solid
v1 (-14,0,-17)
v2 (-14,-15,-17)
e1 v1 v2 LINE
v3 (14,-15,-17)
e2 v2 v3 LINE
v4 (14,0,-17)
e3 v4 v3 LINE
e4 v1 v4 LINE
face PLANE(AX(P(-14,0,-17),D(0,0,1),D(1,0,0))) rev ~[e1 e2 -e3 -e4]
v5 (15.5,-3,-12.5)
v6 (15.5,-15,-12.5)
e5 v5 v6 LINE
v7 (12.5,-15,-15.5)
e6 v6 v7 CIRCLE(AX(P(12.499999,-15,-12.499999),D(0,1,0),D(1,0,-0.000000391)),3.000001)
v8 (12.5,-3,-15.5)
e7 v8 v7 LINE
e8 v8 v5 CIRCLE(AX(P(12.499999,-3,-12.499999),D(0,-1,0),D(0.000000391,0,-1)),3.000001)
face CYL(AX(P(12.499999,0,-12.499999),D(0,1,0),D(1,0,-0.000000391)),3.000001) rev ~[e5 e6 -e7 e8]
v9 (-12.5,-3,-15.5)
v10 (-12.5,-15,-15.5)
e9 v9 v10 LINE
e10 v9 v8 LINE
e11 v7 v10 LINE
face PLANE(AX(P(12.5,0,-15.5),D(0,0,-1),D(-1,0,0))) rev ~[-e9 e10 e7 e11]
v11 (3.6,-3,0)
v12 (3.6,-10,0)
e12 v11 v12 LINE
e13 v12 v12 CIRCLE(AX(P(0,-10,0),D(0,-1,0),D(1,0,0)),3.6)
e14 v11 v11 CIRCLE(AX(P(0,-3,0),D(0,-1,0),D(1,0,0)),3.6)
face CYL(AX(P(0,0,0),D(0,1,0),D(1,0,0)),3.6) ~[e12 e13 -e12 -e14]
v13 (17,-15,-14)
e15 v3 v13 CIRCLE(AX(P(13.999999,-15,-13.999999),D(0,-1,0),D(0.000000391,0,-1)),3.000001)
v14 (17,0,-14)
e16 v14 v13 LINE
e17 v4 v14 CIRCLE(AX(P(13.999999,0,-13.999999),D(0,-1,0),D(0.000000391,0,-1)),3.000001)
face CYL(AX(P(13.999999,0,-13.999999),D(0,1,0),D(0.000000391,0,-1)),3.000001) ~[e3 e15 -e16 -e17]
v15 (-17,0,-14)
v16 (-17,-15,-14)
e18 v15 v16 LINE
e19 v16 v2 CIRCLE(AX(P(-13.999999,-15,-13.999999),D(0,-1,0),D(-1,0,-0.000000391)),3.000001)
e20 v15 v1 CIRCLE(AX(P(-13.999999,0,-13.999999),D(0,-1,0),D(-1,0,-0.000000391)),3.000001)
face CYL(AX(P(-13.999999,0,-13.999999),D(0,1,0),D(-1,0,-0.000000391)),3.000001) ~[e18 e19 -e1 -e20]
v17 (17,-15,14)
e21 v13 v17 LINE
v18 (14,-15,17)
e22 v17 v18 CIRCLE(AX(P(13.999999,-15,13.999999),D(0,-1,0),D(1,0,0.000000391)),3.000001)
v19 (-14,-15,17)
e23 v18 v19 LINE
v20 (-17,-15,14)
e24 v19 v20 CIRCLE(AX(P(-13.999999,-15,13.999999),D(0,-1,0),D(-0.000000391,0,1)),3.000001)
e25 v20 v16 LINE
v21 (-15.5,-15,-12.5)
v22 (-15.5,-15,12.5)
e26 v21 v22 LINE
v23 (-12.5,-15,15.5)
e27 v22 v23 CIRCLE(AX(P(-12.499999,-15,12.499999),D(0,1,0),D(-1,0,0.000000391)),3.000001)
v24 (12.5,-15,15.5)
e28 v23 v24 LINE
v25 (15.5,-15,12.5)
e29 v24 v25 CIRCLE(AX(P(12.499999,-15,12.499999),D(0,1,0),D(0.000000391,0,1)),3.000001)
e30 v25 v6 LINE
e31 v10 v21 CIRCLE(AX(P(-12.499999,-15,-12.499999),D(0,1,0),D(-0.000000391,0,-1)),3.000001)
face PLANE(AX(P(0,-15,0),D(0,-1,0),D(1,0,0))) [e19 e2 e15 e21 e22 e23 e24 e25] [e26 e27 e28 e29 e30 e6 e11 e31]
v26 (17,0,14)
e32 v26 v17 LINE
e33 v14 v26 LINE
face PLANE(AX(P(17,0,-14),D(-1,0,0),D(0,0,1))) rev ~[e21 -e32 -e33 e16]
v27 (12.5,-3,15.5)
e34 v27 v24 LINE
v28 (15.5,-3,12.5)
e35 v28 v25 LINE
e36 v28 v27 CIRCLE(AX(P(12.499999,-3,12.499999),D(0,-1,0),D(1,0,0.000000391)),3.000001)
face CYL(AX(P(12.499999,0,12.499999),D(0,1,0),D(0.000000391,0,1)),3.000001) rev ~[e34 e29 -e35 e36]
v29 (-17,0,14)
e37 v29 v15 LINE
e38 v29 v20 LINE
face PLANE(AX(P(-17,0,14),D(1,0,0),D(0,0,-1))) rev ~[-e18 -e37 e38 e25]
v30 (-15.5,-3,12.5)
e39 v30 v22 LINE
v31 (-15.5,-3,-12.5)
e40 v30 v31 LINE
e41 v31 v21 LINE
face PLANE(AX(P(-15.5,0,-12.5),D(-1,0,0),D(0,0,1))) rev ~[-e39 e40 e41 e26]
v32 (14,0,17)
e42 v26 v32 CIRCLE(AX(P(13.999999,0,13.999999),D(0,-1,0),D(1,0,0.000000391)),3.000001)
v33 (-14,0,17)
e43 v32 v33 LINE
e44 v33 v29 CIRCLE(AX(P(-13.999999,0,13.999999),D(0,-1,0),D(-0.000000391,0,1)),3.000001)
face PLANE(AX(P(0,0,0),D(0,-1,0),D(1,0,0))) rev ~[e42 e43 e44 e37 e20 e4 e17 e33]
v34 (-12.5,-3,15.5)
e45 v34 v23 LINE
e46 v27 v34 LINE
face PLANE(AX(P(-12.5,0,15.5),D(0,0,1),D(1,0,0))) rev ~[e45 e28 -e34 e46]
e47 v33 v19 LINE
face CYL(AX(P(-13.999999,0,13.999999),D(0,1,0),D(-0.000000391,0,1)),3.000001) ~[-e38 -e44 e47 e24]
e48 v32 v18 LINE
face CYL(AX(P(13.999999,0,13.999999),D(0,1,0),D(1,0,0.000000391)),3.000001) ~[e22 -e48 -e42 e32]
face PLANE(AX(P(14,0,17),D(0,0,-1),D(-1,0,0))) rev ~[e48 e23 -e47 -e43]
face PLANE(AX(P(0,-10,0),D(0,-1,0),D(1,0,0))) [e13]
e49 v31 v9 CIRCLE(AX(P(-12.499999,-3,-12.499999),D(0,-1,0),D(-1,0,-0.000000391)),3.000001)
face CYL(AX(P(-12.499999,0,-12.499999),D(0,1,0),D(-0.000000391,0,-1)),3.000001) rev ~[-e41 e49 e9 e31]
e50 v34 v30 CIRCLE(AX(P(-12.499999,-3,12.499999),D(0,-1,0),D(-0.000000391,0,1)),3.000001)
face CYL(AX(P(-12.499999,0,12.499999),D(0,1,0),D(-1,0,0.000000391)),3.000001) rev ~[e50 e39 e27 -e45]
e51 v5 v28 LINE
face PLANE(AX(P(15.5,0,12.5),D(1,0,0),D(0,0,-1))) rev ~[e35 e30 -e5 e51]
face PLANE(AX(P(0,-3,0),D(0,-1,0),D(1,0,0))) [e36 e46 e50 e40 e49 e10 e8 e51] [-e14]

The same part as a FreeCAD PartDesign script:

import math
import FreeCAD as App
import Part
import Sketcher
Q = App.Units.Quantity

doc = App.newDocument("Part")
params = doc.addObject("Spreadsheet::Sheet", "Params")
for row, (alias, value) in enumerate([
    ("sketch1_radius", "3.000001 mm"),
    ("sketch1_diameter", "7.2 mm"),
    ("sketch1_width", "25 mm"),
    ("pad1_length", "3 mm"),
    ("sketch2_diameter", "7.2 mm"),
    ("pad2_length", "10 mm"),
    ("sketch3_radius", "3.000001 mm"),
    ("sketch3_width", "28 mm"),
    ("sketch3_width2", "25 mm"),
    ("pad3_length", "15 mm"),
], start=1):
    params.set(f"A{row}", alias)
    params.set(f"B{row}", "=" + value)
    params.setAlias(f"B{row}", alias)

body = doc.addObject("PartDesign::Body", "Body")

# Sketch on XZ plane
sketch1 = body.newObject("Sketcher::SketchObject", "Sketch")
sketch1.AttachmentSupport = (doc.getObject("XZ_Plane"), [""])
sketch1.MapMode = "FlatFace"
sketch1.addGeometry(Part.ArcOfCircle(Part.Circle(App.Vector(12.5, 12.5, 0), App.Vector(0, 0, 1), 3), math.radians(0), math.radians(90)), False)
sketch1.addGeometry(Part.LineSegment(App.Vector(12.5, 15.5, 0), App.Vector(-12.5, 15.5, 0)), False)
sketch1.addGeometry(Part.ArcOfCircle(Part.Circle(App.Vector(-12.5, 12.5, 0), App.Vector(0, 0, 1), 3), math.radians(90), math.radians(180)), False)
sketch1.addGeometry(Part.LineSegment(App.Vector(-15.5, 12.5, 0), App.Vector(-15.5, -12.5, 0)), False)
sketch1.addGeometry(Part.ArcOfCircle(Part.Circle(App.Vector(-12.5, -12.5, 0), App.Vector(0, 0, 1), 3), math.radians(-180), math.radians(-90)), False)
sketch1.addGeometry(Part.LineSegment(App.Vector(-12.5, -15.5, 0), App.Vector(12.5, -15.5, 0)), False)
sketch1.addGeometry(Part.ArcOfCircle(Part.Circle(App.Vector(12.5, -12.5, 0), App.Vector(0, 0, 1), 3), math.radians(-90), math.radians(0)), False)
sketch1.addGeometry(Part.LineSegment(App.Vector(15.5, -12.5, 0), App.Vector(15.5, 12.5, 0)), False)
sketch1.addGeometry(Part.Circle(App.Vector(0, 0, 0), App.Vector(0, 0, 1), 3.6), False)
sketch1.addConstraint(Sketcher.Constraint("Tangent", 0, 2, 1, 1))
sketch1.addConstraint(Sketcher.Constraint("Tangent", 1, 2, 2, 1))
sketch1.addConstraint(Sketcher.Constraint("Tangent", 2, 2, 3, 1))
sketch1.addConstraint(Sketcher.Constraint("Tangent", 3, 2, 4, 1))
sketch1.addConstraint(Sketcher.Constraint("Tangent", 4, 2, 5, 1))
sketch1.addConstraint(Sketcher.Constraint("Tangent", 5, 2, 6, 1))
sketch1.addConstraint(Sketcher.Constraint("Tangent", 6, 2, 7, 1))
sketch1.addConstraint(Sketcher.Constraint("Tangent", 7, 2, 0, 1))
sketch1.addConstraint(Sketcher.Constraint("Horizontal", 1))
sketch1.addConstraint(Sketcher.Constraint("Vertical", 3))
sketch1.addConstraint(Sketcher.Constraint("Horizontal", 5))
sketch1.addConstraint(Sketcher.Constraint("Vertical", 7))
sketch1.addConstraint(Sketcher.Constraint("Coincident", 8, 3, -1, 1))
sketch1.addConstraint(Sketcher.Constraint("Equal", 0, 2))
sketch1.addConstraint(Sketcher.Constraint("Equal", 2, 4))
sketch1.addConstraint(Sketcher.Constraint("Equal", 4, 6))
sketch1.addConstraint(Sketcher.Constraint("Symmetric", 0, 3, 4, 3, -1, 1))
sketch1.addConstraint(Sketcher.Constraint("Equal", 5, 3))
sketch1.addConstraint(Sketcher.Constraint("Radius", 0, Q("3.000001 mm")))
sketch1.addConstraint(Sketcher.Constraint("Diameter", 8, Q("7.2 mm")))
sketch1.addConstraint(Sketcher.Constraint("DistanceX", 1, 2, 1, 1, Q("25 mm")))
sketch1.setExpression("Constraints[18]", "Params.sketch1_radius")
sketch1.setExpression("Constraints[19]", "Params.sketch1_diameter")
sketch1.setExpression("Constraints[20]", "Params.sketch1_width")
pad1 = body.newObject("PartDesign::Pad", "Pad")
pad1.Profile = sketch1
pad1.setExpression("Length", "Params.pad1_length")

# Sketch on XZ plane
sketch2 = body.newObject("Sketcher::SketchObject", "Sketch001")
sketch2.AttachmentSupport = (doc.getObject("XZ_Plane"), [""])
sketch2.MapMode = "FlatFace"
sketch2.addGeometry(Part.Circle(App.Vector(0, 0, 0), App.Vector(0, 0, 1), 3.6), False)
sketch2.addConstraint(Sketcher.Constraint("Coincident", 0, 3, -1, 1))
sketch2.addConstraint(Sketcher.Constraint("Diameter", 0, Q("7.2 mm")))
sketch2.setExpression("Constraints[1]", "Params.sketch2_diameter")
pad2 = body.newObject("PartDesign::Pad", "Pad001")
pad2.Profile = sketch2
pad2.setExpression("Length", "Params.pad2_length")

# Sketch on XZ plane
sketch3 = body.newObject("Sketcher::SketchObject", "Sketch002")
sketch3.AttachmentSupport = (doc.getObject("XZ_Plane"), [""])
sketch3.MapMode = "FlatFace"
sketch3.addGeometry(Part.LineSegment(App.Vector(14, 17, 0), App.Vector(-14, 17, 0)), False)
sketch3.addGeometry(Part.ArcOfCircle(Part.Circle(App.Vector(-14, 14, 0), App.Vector(0, 0, 1), 3), math.radians(90), math.radians(180)), False)
sketch3.addGeometry(Part.LineSegment(App.Vector(-17, 14, 0), App.Vector(-17, -14, 0)), False)
sketch3.addGeometry(Part.ArcOfCircle(Part.Circle(App.Vector(-14, -14, 0), App.Vector(0, 0, 1), 3), math.radians(-180), math.radians(-90)), False)
sketch3.addGeometry(Part.LineSegment(App.Vector(-14, -17, 0), App.Vector(14, -17, 0)), False)
sketch3.addGeometry(Part.ArcOfCircle(Part.Circle(App.Vector(14, -14, 0), App.Vector(0, 0, 1), 3), math.radians(-90), math.radians(0)), False)
sketch3.addGeometry(Part.LineSegment(App.Vector(17, -14, 0), App.Vector(17, 14, 0)), False)
sketch3.addGeometry(Part.ArcOfCircle(Part.Circle(App.Vector(14, 14, 0), App.Vector(0, 0, 1), 3), math.radians(0), math.radians(90)), False)
sketch3.addGeometry(Part.ArcOfCircle(Part.Circle(App.Vector(-12.5, 12.5, 0), App.Vector(0, 0, 1), 3), math.radians(90), math.radians(180)), False)
sketch3.addGeometry(Part.LineSegment(App.Vector(-12.5, 15.5, 0), App.Vector(12.5, 15.5, 0)), False)
sketch3.addGeometry(Part.ArcOfCircle(Part.Circle(App.Vector(12.5, 12.5, 0), App.Vector(0, 0, 1), 3), math.radians(0), math.radians(90)), False)
sketch3.addGeometry(Part.LineSegment(App.Vector(15.5, 12.5, 0), App.Vector(15.5, -12.5, 0)), False)
sketch3.addGeometry(Part.ArcOfCircle(Part.Circle(App.Vector(12.5, -12.5, 0), App.Vector(0, 0, 1), 3), math.radians(-90), math.radians(0)), False)
sketch3.addGeometry(Part.LineSegment(App.Vector(12.5, -15.5, 0), App.Vector(-12.5, -15.5, 0)), False)
sketch3.addGeometry(Part.ArcOfCircle(Part.Circle(App.Vector(-12.5, -12.5, 0), App.Vector(0, 0, 1), 3), math.radians(-180), math.radians(-90)), False)
sketch3.addGeometry(Part.LineSegment(App.Vector(-15.5, -12.5, 0), App.Vector(-15.5, 12.5, 0)), False)
sketch3.addConstraint(Sketcher.Constraint("Tangent", 0, 2, 1, 1))
sketch3.addConstraint(Sketcher.Constraint("Tangent", 1, 2, 2, 1))
sketch3.addConstraint(Sketcher.Constraint("Tangent", 2, 2, 3, 1))
sketch3.addConstraint(Sketcher.Constraint("Tangent", 3, 2, 4, 1))
sketch3.addConstraint(Sketcher.Constraint("Tangent", 4, 2, 5, 1))
sketch3.addConstraint(Sketcher.Constraint("Tangent", 5, 2, 6, 1))
sketch3.addConstraint(Sketcher.Constraint("Tangent", 6, 2, 7, 1))
sketch3.addConstraint(Sketcher.Constraint("Tangent", 7, 2, 0, 1))
sketch3.addConstraint(Sketcher.Constraint("Tangent", 8, 1, 9, 1))
sketch3.addConstraint(Sketcher.Constraint("Tangent", 9, 2, 10, 2))
sketch3.addConstraint(Sketcher.Constraint("Tangent", 10, 1, 11, 1))
sketch3.addConstraint(Sketcher.Constraint("Tangent", 11, 2, 12, 2))
sketch3.addConstraint(Sketcher.Constraint("Tangent", 12, 1, 13, 1))
sketch3.addConstraint(Sketcher.Constraint("Tangent", 13, 2, 14, 2))
sketch3.addConstraint(Sketcher.Constraint("Tangent", 14, 1, 15, 1))
sketch3.addConstraint(Sketcher.Constraint("Tangent", 15, 2, 8, 2))
sketch3.addConstraint(Sketcher.Constraint("Horizontal", 0))
sketch3.addConstraint(Sketcher.Constraint("Vertical", 2))
sketch3.addConstraint(Sketcher.Constraint("Horizontal", 4))
sketch3.addConstraint(Sketcher.Constraint("Vertical", 6))
sketch3.addConstraint(Sketcher.Constraint("Horizontal", 9))
sketch3.addConstraint(Sketcher.Constraint("Vertical", 11))
sketch3.addConstraint(Sketcher.Constraint("Horizontal", 13))
sketch3.addConstraint(Sketcher.Constraint("Vertical", 15))
sketch3.addConstraint(Sketcher.Constraint("Equal", 1, 3))
sketch3.addConstraint(Sketcher.Constraint("Equal", 3, 5))
sketch3.addConstraint(Sketcher.Constraint("Equal", 5, 7))
sketch3.addConstraint(Sketcher.Constraint("Equal", 7, 8))
sketch3.addConstraint(Sketcher.Constraint("Equal", 8, 10))
sketch3.addConstraint(Sketcher.Constraint("Equal", 10, 12))
sketch3.addConstraint(Sketcher.Constraint("Equal", 12, 14))
sketch3.addConstraint(Sketcher.Constraint("Symmetric", 1, 3, 5, 3, -1, 1))
sketch3.addConstraint(Sketcher.Constraint("Symmetric", 8, 3, 12, 3, -1, 1))
sketch3.addConstraint(Sketcher.Constraint("Equal", 4, 2))
sketch3.addConstraint(Sketcher.Constraint("Equal", 13, 11))
sketch3.addConstraint(Sketcher.Constraint("Radius", 1, Q("3.000001 mm")))
sketch3.addConstraint(Sketcher.Constraint("DistanceX", 0, 2, 0, 1, Q("28 mm")))
sketch3.addConstraint(Sketcher.Constraint("DistanceX", 9, 1, 9, 2, Q("25 mm")))
sketch3.setExpression("Constraints[35]", "Params.sketch3_radius")
sketch3.setExpression("Constraints[36]", "Params.sketch3_width")
sketch3.setExpression("Constraints[37]", "Params.sketch3_width2")
pad3 = body.newObject("PartDesign::Pad", "Pad002")
pad3.Profile = sketch3
pad3.setExpression("Length", "Params.pad3_length")

doc.recompute()
